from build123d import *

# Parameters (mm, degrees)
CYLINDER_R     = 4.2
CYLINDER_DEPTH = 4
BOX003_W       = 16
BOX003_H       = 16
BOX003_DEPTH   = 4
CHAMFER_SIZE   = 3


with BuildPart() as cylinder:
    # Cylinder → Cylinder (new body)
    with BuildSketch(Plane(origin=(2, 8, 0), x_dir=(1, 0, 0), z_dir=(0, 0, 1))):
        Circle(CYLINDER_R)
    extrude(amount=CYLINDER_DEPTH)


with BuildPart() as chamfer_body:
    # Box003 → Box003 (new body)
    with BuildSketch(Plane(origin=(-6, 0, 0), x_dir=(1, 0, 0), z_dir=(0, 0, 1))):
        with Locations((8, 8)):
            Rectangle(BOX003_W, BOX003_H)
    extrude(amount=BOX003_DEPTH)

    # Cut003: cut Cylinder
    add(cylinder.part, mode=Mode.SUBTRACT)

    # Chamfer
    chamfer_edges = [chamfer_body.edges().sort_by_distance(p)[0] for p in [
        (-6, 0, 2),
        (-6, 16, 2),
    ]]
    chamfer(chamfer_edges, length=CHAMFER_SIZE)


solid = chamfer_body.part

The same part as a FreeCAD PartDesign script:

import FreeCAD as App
import Part
import Sketcher

V = App.Vector
Q = App.Units.Quantity


def edges_at(feature, points):
    """Names of the edges that pass closest to the given points."""
    edges = feature.Shape.Edges
    near = lambda p: min(range(len(edges)), key=lambda i: edges[i].distToShape(Part.Vertex(*p))[0])
    return sorted({f"Edge{near(p) + 1}" for p in points})


def add_polygon(sketch, points):
    """Adds a closed chain of lines whose ends are joined by coincident constraints."""
    first, n = sketch.GeometryCount, len(points)
    for a, b in zip(points, points[1:] + points[:1]):
        sketch.addGeometry(Part.LineSegment(App.Vector(*a, 0), App.Vector(*b, 0)), False)
    for i in range(n):
        sketch.addConstraint(Sketcher.Constraint("Coincident", first + i, 2, first + (i + 1) % n, 1))

doc = App.newDocument("Part")
body = doc.addObject("PartDesign::Body", "Body")

# Sketch on XY plane
sketch1 = body.newObject("Sketcher::SketchObject", "Sketch")
sketch1.AttachmentSupport = (doc.getObject("XY_Plane"), [""])
sketch1.MapMode = "FlatFace"
sketch1.addGeometry(Part.Circle(V(2, 8, 0), V(0, 0, 1), 4.2), False)
sketch1.addConstraint(Sketcher.Constraint("Diameter", 0, Q("8.4 mm")))
sketch1.addConstraint(Sketcher.Constraint("DistanceX", -1, 1, 0, 3, Q("2 mm")))
sketch1.addConstraint(Sketcher.Constraint("DistanceY", -1, 1, 0, 3, Q("8 mm")))
pad1 = body.newObject("PartDesign::Pad", "Pad")
pad1.Profile = sketch1
pad1.Length = 4
body2 = doc.addObject("PartDesign::Body", "Body001")

# Sketch on XY plane
sketch2 = body2.newObject("Sketcher::SketchObject", "Sketch001")
sketch2.AttachmentSupport = (doc.getObject("XY_Plane001"), [""])
sketch2.MapMode = "FlatFace"
add_polygon(sketch2, [(-6, 16), (-6, 0), (10, 0), (10, 16)])  # lines 0-3
sketch2.addConstraint(Sketcher.Constraint("Vertical", 0))
sketch2.addConstraint(Sketcher.Constraint("Horizontal", 1))
sketch2.addConstraint(Sketcher.Constraint("Vertical", 2))
sketch2.addConstraint(Sketcher.Constraint("Horizontal", 3))
sketch2.addConstraint(Sketcher.Constraint("PointOnObject", 0, 2, -1))
sketch2.addConstraint(Sketcher.Constraint("Equal", 3, 0))
sketch2.addConstraint(Sketcher.Constraint("DistanceX", 1, 1, 1, 2, Q("16 mm")))
sketch2.addConstraint(Sketcher.Constraint("DistanceX", 0, 2, -1, 1, Q("6 mm")))
pad2 = body2.newObject("PartDesign::Pad", "Pad001")
pad2.Profile = sketch2
pad2.Length = 4
doc.recompute()

boolean = body2.newObject("PartDesign::Boolean", "Boolean")
boolean.Type = "Cut"
boolean.addObjects([body])
doc.recompute()

chamfer = body2.newObject("PartDesign::Chamfer", "Chamfer")
chamfer.Base = (boolean, edges_at(boolean, [(-6, 0, 2), (-6, 16, 2)]))
chamfer.Size = 3

doc.recompute()
